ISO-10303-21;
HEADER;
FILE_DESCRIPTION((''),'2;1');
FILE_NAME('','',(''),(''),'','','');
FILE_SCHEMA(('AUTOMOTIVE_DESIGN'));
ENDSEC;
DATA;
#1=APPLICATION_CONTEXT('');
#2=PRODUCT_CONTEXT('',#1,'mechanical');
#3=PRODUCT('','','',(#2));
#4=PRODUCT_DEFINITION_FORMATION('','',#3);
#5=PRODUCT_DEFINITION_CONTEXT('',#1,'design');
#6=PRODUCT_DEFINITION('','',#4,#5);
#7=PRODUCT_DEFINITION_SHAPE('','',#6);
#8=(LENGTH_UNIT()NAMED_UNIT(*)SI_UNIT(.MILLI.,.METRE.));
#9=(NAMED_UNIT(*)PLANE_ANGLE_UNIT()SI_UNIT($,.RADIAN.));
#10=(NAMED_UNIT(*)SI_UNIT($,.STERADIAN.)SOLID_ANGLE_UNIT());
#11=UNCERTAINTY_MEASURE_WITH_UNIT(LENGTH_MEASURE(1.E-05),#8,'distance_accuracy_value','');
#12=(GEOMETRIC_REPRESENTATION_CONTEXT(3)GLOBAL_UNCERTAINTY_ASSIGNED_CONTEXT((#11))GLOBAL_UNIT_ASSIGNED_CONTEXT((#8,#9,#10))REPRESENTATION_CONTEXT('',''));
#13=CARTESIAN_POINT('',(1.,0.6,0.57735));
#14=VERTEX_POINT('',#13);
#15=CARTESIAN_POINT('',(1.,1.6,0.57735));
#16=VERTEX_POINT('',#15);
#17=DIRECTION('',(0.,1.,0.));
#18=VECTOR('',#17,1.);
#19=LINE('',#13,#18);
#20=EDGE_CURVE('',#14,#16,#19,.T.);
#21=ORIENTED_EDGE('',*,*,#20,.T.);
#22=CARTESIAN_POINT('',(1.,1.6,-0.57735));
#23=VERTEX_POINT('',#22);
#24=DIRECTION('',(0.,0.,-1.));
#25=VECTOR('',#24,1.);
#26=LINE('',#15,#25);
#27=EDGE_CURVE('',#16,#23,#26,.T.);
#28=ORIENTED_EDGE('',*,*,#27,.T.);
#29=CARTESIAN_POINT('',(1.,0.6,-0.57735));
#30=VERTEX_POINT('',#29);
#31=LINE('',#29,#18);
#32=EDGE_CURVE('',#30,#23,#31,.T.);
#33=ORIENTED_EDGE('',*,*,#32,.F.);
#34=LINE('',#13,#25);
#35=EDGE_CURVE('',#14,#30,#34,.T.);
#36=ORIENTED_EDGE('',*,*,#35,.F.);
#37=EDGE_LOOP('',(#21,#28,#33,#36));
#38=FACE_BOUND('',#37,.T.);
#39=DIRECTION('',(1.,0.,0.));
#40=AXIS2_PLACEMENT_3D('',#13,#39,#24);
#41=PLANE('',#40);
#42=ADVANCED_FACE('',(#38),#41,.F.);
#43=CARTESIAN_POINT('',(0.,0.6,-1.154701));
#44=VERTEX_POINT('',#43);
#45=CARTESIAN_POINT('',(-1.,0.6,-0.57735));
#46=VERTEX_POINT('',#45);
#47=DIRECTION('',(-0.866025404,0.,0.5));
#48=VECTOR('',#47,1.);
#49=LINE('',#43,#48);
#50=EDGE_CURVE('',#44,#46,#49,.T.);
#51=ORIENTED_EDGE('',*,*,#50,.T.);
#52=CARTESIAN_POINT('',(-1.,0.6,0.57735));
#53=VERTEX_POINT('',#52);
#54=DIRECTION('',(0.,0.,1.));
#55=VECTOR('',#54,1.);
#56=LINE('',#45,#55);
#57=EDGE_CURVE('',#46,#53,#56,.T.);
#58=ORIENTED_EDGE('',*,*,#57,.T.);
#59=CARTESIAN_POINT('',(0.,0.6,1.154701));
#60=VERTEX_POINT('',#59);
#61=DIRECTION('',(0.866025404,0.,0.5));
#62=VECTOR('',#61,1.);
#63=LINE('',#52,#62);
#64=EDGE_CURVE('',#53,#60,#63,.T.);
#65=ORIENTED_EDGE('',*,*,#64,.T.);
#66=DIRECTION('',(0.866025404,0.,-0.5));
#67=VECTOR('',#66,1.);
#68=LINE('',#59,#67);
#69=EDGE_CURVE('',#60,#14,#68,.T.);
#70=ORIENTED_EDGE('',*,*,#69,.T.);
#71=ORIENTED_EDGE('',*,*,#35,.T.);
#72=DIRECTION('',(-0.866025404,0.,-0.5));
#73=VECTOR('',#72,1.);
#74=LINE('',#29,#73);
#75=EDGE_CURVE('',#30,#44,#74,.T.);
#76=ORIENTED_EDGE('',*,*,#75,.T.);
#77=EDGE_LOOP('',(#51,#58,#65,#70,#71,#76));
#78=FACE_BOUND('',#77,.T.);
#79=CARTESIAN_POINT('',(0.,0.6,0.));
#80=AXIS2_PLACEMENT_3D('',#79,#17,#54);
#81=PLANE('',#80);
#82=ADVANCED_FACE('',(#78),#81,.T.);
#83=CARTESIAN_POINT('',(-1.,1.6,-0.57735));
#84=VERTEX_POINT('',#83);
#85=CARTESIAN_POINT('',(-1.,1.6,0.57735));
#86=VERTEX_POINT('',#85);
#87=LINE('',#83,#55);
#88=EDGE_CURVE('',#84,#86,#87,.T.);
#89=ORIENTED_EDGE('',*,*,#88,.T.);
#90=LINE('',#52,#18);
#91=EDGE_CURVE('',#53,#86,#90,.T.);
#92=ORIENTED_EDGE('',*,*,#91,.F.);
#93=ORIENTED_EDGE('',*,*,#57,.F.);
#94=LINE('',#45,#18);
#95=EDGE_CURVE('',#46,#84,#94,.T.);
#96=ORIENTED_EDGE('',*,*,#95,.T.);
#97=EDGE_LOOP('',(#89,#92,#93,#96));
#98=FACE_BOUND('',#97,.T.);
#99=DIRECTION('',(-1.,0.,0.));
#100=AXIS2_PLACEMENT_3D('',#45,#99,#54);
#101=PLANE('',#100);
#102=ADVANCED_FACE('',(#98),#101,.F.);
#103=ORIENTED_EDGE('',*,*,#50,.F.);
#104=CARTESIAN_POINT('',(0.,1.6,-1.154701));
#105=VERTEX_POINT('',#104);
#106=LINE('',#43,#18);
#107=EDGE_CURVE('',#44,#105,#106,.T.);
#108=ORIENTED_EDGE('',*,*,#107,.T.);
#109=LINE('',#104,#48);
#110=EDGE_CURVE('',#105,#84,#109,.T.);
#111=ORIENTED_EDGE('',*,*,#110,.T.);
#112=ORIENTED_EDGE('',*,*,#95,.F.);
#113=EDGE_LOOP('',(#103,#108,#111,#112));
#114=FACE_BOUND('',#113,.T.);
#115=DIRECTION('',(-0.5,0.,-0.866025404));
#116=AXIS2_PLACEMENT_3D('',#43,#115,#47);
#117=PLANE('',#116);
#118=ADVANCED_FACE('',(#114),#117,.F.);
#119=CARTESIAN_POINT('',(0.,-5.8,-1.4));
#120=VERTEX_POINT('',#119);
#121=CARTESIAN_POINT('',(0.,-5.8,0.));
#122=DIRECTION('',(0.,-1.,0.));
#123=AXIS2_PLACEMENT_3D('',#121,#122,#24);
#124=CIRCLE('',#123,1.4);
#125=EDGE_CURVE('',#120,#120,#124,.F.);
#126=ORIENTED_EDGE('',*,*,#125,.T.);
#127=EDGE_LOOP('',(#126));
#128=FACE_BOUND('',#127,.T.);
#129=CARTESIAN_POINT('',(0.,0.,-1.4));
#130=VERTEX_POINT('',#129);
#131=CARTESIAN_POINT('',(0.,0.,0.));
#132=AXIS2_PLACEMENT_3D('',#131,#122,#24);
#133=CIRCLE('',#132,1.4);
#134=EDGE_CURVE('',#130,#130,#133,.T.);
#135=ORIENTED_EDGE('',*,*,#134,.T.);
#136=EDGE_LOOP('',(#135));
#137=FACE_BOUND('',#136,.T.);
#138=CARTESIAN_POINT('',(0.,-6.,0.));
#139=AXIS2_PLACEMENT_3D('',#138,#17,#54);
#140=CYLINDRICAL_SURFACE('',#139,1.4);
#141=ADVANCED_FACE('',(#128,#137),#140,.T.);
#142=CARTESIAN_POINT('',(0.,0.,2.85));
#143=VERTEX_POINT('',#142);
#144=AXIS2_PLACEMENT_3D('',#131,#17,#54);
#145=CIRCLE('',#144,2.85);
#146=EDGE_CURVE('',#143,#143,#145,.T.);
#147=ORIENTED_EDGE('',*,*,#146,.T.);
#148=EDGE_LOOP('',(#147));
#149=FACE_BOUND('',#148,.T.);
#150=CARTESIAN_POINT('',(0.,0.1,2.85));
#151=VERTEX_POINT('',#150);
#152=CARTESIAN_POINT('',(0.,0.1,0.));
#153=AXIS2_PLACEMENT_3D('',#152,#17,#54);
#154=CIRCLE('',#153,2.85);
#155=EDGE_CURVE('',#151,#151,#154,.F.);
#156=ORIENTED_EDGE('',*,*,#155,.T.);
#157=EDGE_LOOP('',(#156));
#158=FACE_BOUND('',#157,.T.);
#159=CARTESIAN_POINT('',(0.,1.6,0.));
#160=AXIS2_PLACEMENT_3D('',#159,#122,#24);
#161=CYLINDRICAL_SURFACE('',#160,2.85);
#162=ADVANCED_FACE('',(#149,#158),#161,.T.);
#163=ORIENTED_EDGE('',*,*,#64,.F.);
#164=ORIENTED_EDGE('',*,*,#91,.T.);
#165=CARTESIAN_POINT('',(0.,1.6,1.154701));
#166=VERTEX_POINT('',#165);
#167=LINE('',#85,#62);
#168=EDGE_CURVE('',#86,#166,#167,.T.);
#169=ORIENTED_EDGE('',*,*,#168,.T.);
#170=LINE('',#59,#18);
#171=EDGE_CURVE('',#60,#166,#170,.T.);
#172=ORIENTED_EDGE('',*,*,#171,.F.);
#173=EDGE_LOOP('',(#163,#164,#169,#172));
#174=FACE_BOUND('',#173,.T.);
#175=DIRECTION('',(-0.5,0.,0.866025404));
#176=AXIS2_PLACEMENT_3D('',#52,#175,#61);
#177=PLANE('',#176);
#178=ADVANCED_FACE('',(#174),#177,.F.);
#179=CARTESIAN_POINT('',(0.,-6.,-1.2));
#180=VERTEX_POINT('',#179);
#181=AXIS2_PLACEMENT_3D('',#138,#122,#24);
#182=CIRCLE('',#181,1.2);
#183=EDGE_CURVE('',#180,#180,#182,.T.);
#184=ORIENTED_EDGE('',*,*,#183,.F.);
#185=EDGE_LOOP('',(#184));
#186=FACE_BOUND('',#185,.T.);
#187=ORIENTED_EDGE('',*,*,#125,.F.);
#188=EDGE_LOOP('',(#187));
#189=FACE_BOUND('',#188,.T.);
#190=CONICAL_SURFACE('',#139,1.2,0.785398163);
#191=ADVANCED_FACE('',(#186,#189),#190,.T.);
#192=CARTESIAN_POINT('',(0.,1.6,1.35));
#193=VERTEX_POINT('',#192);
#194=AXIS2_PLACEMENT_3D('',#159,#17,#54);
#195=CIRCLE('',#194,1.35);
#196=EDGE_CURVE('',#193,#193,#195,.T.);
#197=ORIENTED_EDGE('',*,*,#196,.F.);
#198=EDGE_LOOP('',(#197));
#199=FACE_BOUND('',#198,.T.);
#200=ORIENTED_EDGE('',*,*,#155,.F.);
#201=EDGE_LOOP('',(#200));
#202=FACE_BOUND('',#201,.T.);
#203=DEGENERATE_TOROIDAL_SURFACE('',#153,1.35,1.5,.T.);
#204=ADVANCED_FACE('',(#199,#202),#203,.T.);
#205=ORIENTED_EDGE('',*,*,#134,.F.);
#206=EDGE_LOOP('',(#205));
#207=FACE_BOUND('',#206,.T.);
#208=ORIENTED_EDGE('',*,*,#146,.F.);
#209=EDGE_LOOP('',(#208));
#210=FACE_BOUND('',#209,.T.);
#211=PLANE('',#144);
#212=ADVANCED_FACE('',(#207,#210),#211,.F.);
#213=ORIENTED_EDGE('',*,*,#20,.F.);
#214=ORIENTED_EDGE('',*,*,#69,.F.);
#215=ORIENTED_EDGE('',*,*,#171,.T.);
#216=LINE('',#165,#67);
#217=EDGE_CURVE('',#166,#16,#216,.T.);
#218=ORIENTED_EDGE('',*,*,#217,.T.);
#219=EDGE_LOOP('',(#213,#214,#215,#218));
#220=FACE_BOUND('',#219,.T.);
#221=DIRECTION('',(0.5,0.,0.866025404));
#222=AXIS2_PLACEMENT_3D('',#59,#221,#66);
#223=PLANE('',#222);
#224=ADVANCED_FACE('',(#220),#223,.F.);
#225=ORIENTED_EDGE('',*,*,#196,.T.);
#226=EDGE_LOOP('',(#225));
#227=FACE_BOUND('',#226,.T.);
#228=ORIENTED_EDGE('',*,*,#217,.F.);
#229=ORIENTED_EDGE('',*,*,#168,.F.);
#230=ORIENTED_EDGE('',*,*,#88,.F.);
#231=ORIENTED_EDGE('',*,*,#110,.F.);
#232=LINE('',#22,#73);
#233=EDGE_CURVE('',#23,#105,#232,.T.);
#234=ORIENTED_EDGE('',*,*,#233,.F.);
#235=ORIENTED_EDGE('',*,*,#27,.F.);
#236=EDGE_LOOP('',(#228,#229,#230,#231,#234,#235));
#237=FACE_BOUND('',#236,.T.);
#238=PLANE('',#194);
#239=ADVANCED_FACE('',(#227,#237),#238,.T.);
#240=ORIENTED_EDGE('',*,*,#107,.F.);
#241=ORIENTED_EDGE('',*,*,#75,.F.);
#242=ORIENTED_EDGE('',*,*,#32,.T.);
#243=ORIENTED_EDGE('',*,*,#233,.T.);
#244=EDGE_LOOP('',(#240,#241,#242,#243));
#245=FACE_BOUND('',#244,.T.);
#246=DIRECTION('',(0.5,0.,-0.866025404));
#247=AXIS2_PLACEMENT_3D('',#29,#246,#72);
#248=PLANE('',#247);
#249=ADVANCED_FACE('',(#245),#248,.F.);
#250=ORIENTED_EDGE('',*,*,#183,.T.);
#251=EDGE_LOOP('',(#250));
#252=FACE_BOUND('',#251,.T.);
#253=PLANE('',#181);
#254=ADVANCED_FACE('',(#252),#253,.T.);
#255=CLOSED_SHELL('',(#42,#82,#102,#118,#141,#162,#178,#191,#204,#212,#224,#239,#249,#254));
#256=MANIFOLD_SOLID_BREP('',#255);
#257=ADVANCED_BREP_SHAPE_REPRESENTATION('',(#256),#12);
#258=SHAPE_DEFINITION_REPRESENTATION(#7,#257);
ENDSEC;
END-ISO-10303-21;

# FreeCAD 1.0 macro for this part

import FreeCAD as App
import Part
import Sketcher

V = App.Vector
Q = App.Units.Quantity


def edges_at(feature, points):
    """Names of the edges that pass closest to the given points."""
    edges = feature.Shape.Edges
    near = lambda p: min(range(len(edges)), key=lambda i: edges[i].distToShape(Part.Vertex(*p))[0])
    return sorted({f"Edge{near(p) + 1}" for p in points})

doc = App.newDocument("Part")
body = doc.addObject("PartDesign::Body", "Body")

# Sketch on XZ plane
sketch1 = body.newObject("Sketcher::SketchObject", "Sketch")
sketch1.AttachmentSupport = (doc.getObject("XZ_Plane"), [""])
sketch1.MapMode = "FlatFace"
sketch1.addGeometry(Part.Circle(V(0, 0, 0), V(0, 0, 1), 2.9), False)
sketch1.addConstraint([
    Sketcher.Constraint("Coincident", 0, 3, -1, 1),
    Sketcher.Constraint("Diameter", 0, Q("5.7 mm")),
])
pad1 = body.newObject("PartDesign::Pad", "Pad")
pad1.Profile = sketch1
pad1.Length = 1.6
pad1.Reversed = True

# Sketch on XZ plane
sketch2 = body.newObject("Sketcher::SketchObject", "Sketch001")
sketch2.AttachmentSupport = (doc.getObject("XZ_Plane"), [""])
sketch2.MapMode = "FlatFace"
sketch2.AttachmentOffset = App.Placement(V(0, 0, -1.6), App.Rotation())
sketch2.addGeometry([
    Part.LineSegment(V(0, 1.2, 0), V(1, 0.6, 0)),  # 0
    Part.LineSegment(V(1, 0.6, 0), V(1, -0.6, 0)),  # 1
    Part.LineSegment(V(1, -0.6, 0), V(0, -1.2, 0)),  # 2
    Part.LineSegment(V(0, -1.2, 0), V(-1, -0.6, 0)),  # 3
    Part.LineSegment(V(-1, -0.6, 0), V(-1, 0.6, 0)),  # 4
    Part.LineSegment(V(-1, 0.6, 0), V(0, 1.2, 0)),  # 5
], False)
sketch2.addConstraint([
    Sketcher.Constraint("Coincident", 0, 2, 1, 1),
    Sketcher.Constraint("Coincident", 1, 2, 2, 1),
    Sketcher.Constraint("Coincident", 2, 2, 3, 1),
    Sketcher.Constraint("Coincident", 3, 2, 4, 1),
    Sketcher.Constraint("Coincident", 4, 2, 5, 1),
    Sketcher.Constraint("Coincident", 5, 2, 0, 1),
    Sketcher.Constraint("Vertical", 1),
    Sketcher.Constraint("Vertical", 4),
    Sketcher.Constraint("Symmetric", 0, 2, 3, 2, -1, 1),
    Sketcher.Constraint("Symmetric", 2, 2, 5, 2, -1, 1),
    Sketcher.Constraint("PointOnObject", 2, 2, -2),
    Sketcher.Constraint("Parallel", 2, 5),
    Sketcher.Constraint("Horizontal", 1, 2, 3, 2),
    Sketcher.Constraint("Angle", 0, Q("-30 deg")),
    Sketcher.Constraint("DistanceX", -1, 1, 0, 2, Q("1 mm")),
    Sketcher.Constraint("DistanceY", 1, 2, 1, 1, Q("1.154701 mm")),
])
pocket1 = body.newObject("PartDesign::Pocket", "Pocket")
pocket1.Profile = sketch2
pocket1.Length = 1
pocket1.Reversed = True
doc.recompute()

fillet = body.newObject("PartDesign::Fillet", "Fillet")
fillet.Base = (pocket1, edges_at(pocket1, [(-2.85, 1.6, 0)]))
fillet.Radius = 1.5

# Sketch on XZ plane
sketch3 = body.newObject("Sketcher::SketchObject", "Sketch002")
sketch3.AttachmentSupport = (doc.getObject("XZ_Plane"), [""])
sketch3.MapMode = "FlatFace"
sketch3.addGeometry(Part.Circle(V(0, 0, 0), V(0, 0, 1), 1.4), False)
sketch3.addConstraint([
    Sketcher.Constraint("Coincident", 0, 3, -1, 1),
    Sketcher.Constraint("Diameter", 0, Q("2.8 mm")),
])
pad2 = body.newObject("PartDesign::Pad", "Pad001")
pad2.Profile = sketch3
pad2.Length = 6
doc.recompute()

chamfer = body.newObject("PartDesign::Chamfer", "Chamfer")
chamfer.Base = (pad2, edges_at(pad2, [(-1.4, -6, 0)]))
chamfer.Size = 0.2

doc.recompute()
